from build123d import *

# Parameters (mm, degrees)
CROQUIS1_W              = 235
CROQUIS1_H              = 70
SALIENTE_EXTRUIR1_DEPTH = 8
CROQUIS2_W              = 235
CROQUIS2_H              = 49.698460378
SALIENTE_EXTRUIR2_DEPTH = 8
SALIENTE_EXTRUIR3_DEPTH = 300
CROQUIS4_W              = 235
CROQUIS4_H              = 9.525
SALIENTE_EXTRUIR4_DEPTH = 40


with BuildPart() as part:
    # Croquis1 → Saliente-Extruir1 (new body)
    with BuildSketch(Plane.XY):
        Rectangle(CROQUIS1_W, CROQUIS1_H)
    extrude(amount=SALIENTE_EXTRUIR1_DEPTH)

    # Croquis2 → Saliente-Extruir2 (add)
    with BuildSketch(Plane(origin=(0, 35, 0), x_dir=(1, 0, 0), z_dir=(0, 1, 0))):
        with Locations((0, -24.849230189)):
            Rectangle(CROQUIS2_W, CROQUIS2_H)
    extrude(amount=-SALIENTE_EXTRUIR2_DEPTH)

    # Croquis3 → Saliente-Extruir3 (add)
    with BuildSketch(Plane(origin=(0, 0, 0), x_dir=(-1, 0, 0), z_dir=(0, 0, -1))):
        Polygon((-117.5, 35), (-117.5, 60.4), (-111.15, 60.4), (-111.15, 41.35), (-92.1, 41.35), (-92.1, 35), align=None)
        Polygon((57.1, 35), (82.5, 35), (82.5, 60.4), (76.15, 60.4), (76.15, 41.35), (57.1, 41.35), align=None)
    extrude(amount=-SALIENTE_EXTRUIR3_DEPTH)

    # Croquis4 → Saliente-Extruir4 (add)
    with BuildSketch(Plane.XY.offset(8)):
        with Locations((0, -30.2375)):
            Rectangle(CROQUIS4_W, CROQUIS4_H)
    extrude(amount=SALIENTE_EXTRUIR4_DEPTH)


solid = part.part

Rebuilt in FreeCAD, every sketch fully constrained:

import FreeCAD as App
import Part
import Sketcher
from FreeCAD import Vector
Q = App.Units.Quantity

doc = App.newDocument("Part")
body = doc.addObject("PartDesign::Body", "Body")

# Sketch on XY plane
sketch1 = body.newObject("Sketcher::SketchObject", "Sketch")
sketch1.AttachmentSupport = (doc.getObject("XY_Plane"), [""])
sketch1.MapMode = "FlatFace"
sketch1.addGeometry([
    Part.LineSegment(Vector(-117.5, 35, 0), Vector(-117.5, -35, 0)),
    Part.LineSegment(Vector(-117.5, -35, 0), Vector(117.5, -35, 0)),
    Part.LineSegment(Vector(117.5, -35, 0), Vector(117.5, 35, 0)),
    Part.LineSegment(Vector(117.5, 35, 0), Vector(-117.5, 35, 0)),
], False)
sketch1.addConstraint([
    Sketcher.Constraint("Coincident", 0, 2, 1, 1),
    Sketcher.Constraint("Coincident", 1, 2, 2, 1),
    Sketcher.Constraint("Coincident", 2, 2, 3, 1),
    Sketcher.Constraint("Coincident", 3, 2, 0, 1),
    Sketcher.Constraint("Vertical", 0),
    Sketcher.Constraint("Horizontal", 1),
    Sketcher.Constraint("Vertical", 2),
    Sketcher.Constraint("Horizontal", 3),
    Sketcher.Constraint("Symmetric", 0, 2, 2, 2, -1, 1),
    Sketcher.Constraint("DistanceX", 1, 1, 1, 2, Q("235 mm")),
    Sketcher.Constraint("DistanceY", 0, 2, 0, 1, Q("70 mm")),
])
pad1 = body.newObject("PartDesign::Pad", "Pad")
pad1.Profile = sketch1
pad1.Length = 8

# Sketch on XZ plane
sketch2 = body.newObject("Sketcher::SketchObject", "Sketch001")
sketch2.AttachmentSupport = (doc.getObject("XZ_Plane"), [""])
sketch2.MapMode = "FlatFace"
sketch2.AttachmentOffset = App.Placement(Vector(0, 0, -35), App.Rotation())
sketch2.addGeometry([
    Part.LineSegment(Vector(-117.5, 0, 0), Vector(-117.5, 49.69846, 0)),
    Part.LineSegment(Vector(-117.5, 49.69846, 0), Vector(117.5, 49.69846, 0)),
    Part.LineSegment(Vector(117.5, 49.69846, 0), Vector(117.5, 0, 0)),
    Part.LineSegment(Vector(117.5, 0, 0), Vector(-117.5, 0, 0)),
], False)
sketch2.addConstraint([
    Sketcher.Constraint("Coincident", 0, 2, 1, 1),
    Sketcher.Constraint("Coincident", 1, 2, 2, 1),
    Sketcher.Constraint("Coincident", 2, 2, 3, 1),
    Sketcher.Constraint("Coincident", 3, 2, 0, 1),
    Sketcher.Constraint("Vertical", 0),
    Sketcher.Constraint("Horizontal", 1),
    Sketcher.Constraint("Vertical", 2),
    Sketcher.Constraint("Horizontal", 3),
    Sketcher.Constraint("Symmetric", 2, 2, 3, 2, -1, 1),
    Sketcher.Constraint("DistanceX", 1, 1, 1, 2, Q("235 mm")),
    Sketcher.Constraint("DistanceY", 0, 1, 0, 2, Q("49.69846 mm")),
])
pad2 = body.newObject("PartDesign::Pad", "Pad001")
pad2.Profile = sketch2
pad2.Length = 8

# Sketch on XY plane
sketch3 = body.newObject("Sketcher::SketchObject", "Sketch002")
sketch3.AttachmentSupport = (doc.getObject("XY_Plane"), [""])
sketch3.MapMode = "FlatFace"
sketch3.addGeometry([
    Part.LineSegment(Vector(117.5, 60.4, 0), Vector(117.5, 35, 0)),  # 0
    Part.LineSegment(Vector(117.5, 35, 0), Vector(92.1, 35, 0)),  # 1
    Part.LineSegment(Vector(92.1, 35, 0), Vector(92.1, 41.35, 0)),  # 2
    Part.LineSegment(Vector(92.1, 41.35, 0), Vector(111.15, 41.35, 0)),  # 3
    Part.LineSegment(Vector(111.15, 41.35, 0), Vector(111.15, 60.4, 0)),  # 4
    Part.LineSegment(Vector(111.15, 60.4, 0), Vector(117.5, 60.4, 0)),  # 5
    Part.LineSegment(Vector(-57.1, 35, 0), Vector(-82.5, 35, 0)),  # 6
    Part.LineSegment(Vector(-82.5, 35, 0), Vector(-82.5, 60.4, 0)),  # 7
    Part.LineSegment(Vector(-82.5, 60.4, 0), Vector(-76.15, 60.4, 0)),  # 8
    Part.LineSegment(Vector(-76.15, 60.4, 0), Vector(-76.15, 41.35, 0)),  # 9
    Part.LineSegment(Vector(-76.15, 41.35, 0), Vector(-57.1, 41.35, 0)),  # 10
    Part.LineSegment(Vector(-57.1, 41.35, 0), Vector(-57.1, 35, 0)),  # 11
], False)
sketch3.addConstraint([
    Sketcher.Constraint("Coincident", 0, 2, 1, 1),
    Sketcher.Constraint("Coincident", 1, 2, 2, 1),
    Sketcher.Constraint("Coincident", 2, 2, 3, 1),
    Sketcher.Constraint("Coincident", 3, 2, 4, 1),
    Sketcher.Constraint("Coincident", 4, 2, 5, 1),
    Sketcher.Constraint("Coincident", 5, 2, 0, 1),
    Sketcher.Constraint("Coincident", 6, 2, 7, 1),
    Sketcher.Constraint("Coincident", 7, 2, 8, 1),
    Sketcher.Constraint("Coincident", 8, 2, 9, 1),
    Sketcher.Constraint("Coincident", 9, 2, 10, 1),
    Sketcher.Constraint("Coincident", 10, 2, 11, 1),
    Sketcher.Constraint("Coincident", 11, 2, 6, 1),
    Sketcher.Constraint("Vertical", 0),
    Sketcher.Constraint("Horizontal", 1),
    Sketcher.Constraint("Vertical", 2),
    Sketcher.Constraint("Horizontal", 3),
    Sketcher.Constraint("Vertical", 4),
    Sketcher.Constraint("Horizontal", 5),
    Sketcher.Constraint("Horizontal", 6),
    Sketcher.Constraint("Vertical", 7),
    Sketcher.Constraint("Horizontal", 8),
    Sketcher.Constraint("Vertical", 9),
    Sketcher.Constraint("Horizontal", 10),
    Sketcher.Constraint("Vertical", 11),
    Sketcher.Constraint("Horizontal", 1, 2, 6, 2),
    Sketcher.Constraint("Horizontal", 5, 2, 7, 2),
    Sketcher.Constraint("Horizontal", 3, 2, 9, 2),
    Sketcher.Constraint("Equal", 1, 6),
    Sketcher.Constraint("Equal", 5, 8),
    Sketcher.Constraint("Equal", 6, 0),
    Sketcher.Constraint("Equal", 8, 2),
    Sketcher.Constraint("DistanceX", 1, 2, 1, 1, Q("25.4 mm")),
    Sketcher.Constraint("DistanceY", -1, 1, 0, 2, Q("35 mm")),
    Sketcher.Constraint("DistanceX", 6, 2, 0, 2, Q("200 mm")),
    Sketcher.Constraint("DistanceX", 3, 1, 3, 2, Q("19.05 mm")),
    Sketcher.Constraint("DistanceX", -1, 1, 0, 2, Q("117.5 mm")),
])
pad3 = body.newObject("PartDesign::Pad", "Pad002")
pad3.Profile = sketch3
pad3.Length = 300

# Sketch on XY plane
sketch4 = body.newObject("Sketcher::SketchObject", "Sketch003")
sketch4.AttachmentSupport = (doc.getObject("XY_Plane"), [""])
sketch4.MapMode = "FlatFace"
sketch4.AttachmentOffset = App.Placement(Vector(0, 0, 8), App.Rotation())
sketch4.addGeometry([
    Part.LineSegment(Vector(-117.5, -25.475, 0), Vector(-117.5, -35, 0)),
    Part.LineSegment(Vector(-117.5, -35, 0), Vector(117.5, -35, 0)),
    Part.LineSegment(Vector(117.5, -35, 0), Vector(117.5, -25.475, 0)),
    Part.LineSegment(Vector(117.5, -25.475, 0), Vector(-117.5, -25.475, 0)),
], False)
sketch4.addConstraint([
    Sketcher.Constraint("Coincident", 0, 2, 1, 1),
    Sketcher.Constraint("Coincident", 1, 2, 2, 1),
    Sketcher.Constraint("Coincident", 2, 2, 3, 1),
    Sketcher.Constraint("Coincident", 3, 2, 0, 1),
    Sketcher.Constraint("Vertical", 0),
    Sketcher.Constraint("Horizontal", 1),
    Sketcher.Constraint("Vertical", 2),
    Sketcher.Constraint("Horizontal", 3),
    Sketcher.Constraint("DistanceX", 1, 1, 1, 2, Q("235 mm")),
    Sketcher.Constraint("DistanceY", 0, 2, -1, 1, Q("35 mm")),
    Sketcher.Constraint("DistanceX", 0, 2, -1, 1, Q("117.5 mm")),
    Sketcher.Constraint("DistanceY", 0, 2, 0, 1, Q("9.525 mm")),
])
pad4 = body.newObject("PartDesign::Pad", "Pad003")
pad4.Profile = sketch4
pad4.Length = 40

doc.recompute()
